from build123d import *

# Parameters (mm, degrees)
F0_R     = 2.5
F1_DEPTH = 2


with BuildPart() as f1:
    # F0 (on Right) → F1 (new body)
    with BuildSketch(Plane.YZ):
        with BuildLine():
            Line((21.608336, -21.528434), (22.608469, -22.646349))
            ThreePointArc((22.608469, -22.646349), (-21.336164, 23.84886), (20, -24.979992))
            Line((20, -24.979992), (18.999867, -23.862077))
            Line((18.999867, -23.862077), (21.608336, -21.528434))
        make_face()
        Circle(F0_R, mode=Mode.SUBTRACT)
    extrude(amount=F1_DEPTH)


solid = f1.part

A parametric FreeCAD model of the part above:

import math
import FreeCAD as App
import Part
import Sketcher
Q = App.Units.Quantity

doc = App.newDocument("Part")
body = doc.addObject("PartDesign::Body", "Body")

# Sketch on YZ plane
sketch1 = body.newObject("Sketcher::SketchObject", "Sketch")
sketch1.AttachmentSupport = (doc.getObject("YZ_Plane"), [""])
sketch1.MapMode = "FlatFace"
sketch1.addGeometry(Part.LineSegment(App.Vector(21.6, -21.5, 0), App.Vector(22.6, -22.6, 0)), False)
sketch1.addGeometry(Part.ArcOfCircle(Part.Circle(App.Vector(0, 0, 0), App.Vector(0, 0, 1), 32), math.radians(-45), math.radians(309)), False)
sketch1.addGeometry(Part.LineSegment(App.Vector(20, -25, 0), App.Vector(19, -23.9, 0)), False)
sketch1.addGeometry(Part.LineSegment(App.Vector(19, -23.9, 0), App.Vector(21.6, -21.5, 0)), False)
sketch1.addGeometry(Part.Circle(App.Vector(0, 0, 0), App.Vector(0, 0, 1), 2.5), False)
sketch1.addConstraint(Sketcher.Constraint("Coincident", 0, 2, 1, 1))
sketch1.addConstraint(Sketcher.Constraint("Coincident", 1, 2, 2, 1))
sketch1.addConstraint(Sketcher.Constraint("Coincident", 2, 2, 3, 1))
sketch1.addConstraint(Sketcher.Constraint("Coincident", 3, 2, 0, 1))
sketch1.addConstraint(Sketcher.Constraint("Coincident", 1, 3, -1, 1))
sketch1.addConstraint(Sketcher.Constraint("Coincident", 4, 3, -1, 1))
sketch1.addConstraint(Sketcher.Constraint("Parallel", 0, 2))
sketch1.addConstraint(Sketcher.Constraint("Perpendicular", 2, 3))
sketch1.addConstraint(Sketcher.Constraint("Equal", 0, 2))
sketch1.addConstraint(Sketcher.Constraint("Diameter", 4, Q("5 mm")))
sketch1.addConstraint(Sketcher.Constraint("Radius", 1, Q("32 mm")))
sketch1.addConstraint(Sketcher.Constraint("DistanceX", -1, 1, 1, 2, Q("20 mm")))
sketch1.addConstraint(Sketcher.Constraint("Distance", 0, Q("1.5 mm")))
sketch1.addConstraint(Sketcher.Constraint("Distance", 3, Q("3.5 mm")))
pad1 = body.newObject("PartDesign::Pad", "Pad")
pad1.Profile = sketch1
pad1.Length = 2

doc.recompute()
